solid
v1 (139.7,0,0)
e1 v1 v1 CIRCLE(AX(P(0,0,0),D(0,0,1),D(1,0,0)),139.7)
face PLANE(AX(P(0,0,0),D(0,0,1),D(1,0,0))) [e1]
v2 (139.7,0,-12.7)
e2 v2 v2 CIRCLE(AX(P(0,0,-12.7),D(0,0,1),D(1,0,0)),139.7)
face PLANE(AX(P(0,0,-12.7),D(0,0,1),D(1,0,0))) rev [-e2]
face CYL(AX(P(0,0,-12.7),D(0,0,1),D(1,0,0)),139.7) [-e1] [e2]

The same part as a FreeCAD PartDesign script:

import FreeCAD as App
import Part
import Sketcher

V = App.Vector
Q = App.Units.Quantity

doc = App.newDocument("Part")
body = doc.addObject("PartDesign::Body", "Body")

sketch1 = body.newObject("Sketcher::SketchObject", "Sketch")
sketch1.AttachmentSupport = (doc.getObject("XY_Plane"), [""])
sketch1.MapMode = "FlatFace"
sketch1.addGeometry(Part.Circle(V(0, 0, 0), V(0, 0, 1), 140), False)
sketch1.addConstraint([
    Sketcher.Constraint("Coincident", 0, 3, -1, 1),
    Sketcher.Constraint("Diameter", 0, Q("11 in")),
])
pad1 = body.newObject("PartDesign::Pad", "Pad")
pad1.Profile = sketch1
pad1.Length = Q("0.5 in")
pad1.Reversed = True

doc.recompute()
